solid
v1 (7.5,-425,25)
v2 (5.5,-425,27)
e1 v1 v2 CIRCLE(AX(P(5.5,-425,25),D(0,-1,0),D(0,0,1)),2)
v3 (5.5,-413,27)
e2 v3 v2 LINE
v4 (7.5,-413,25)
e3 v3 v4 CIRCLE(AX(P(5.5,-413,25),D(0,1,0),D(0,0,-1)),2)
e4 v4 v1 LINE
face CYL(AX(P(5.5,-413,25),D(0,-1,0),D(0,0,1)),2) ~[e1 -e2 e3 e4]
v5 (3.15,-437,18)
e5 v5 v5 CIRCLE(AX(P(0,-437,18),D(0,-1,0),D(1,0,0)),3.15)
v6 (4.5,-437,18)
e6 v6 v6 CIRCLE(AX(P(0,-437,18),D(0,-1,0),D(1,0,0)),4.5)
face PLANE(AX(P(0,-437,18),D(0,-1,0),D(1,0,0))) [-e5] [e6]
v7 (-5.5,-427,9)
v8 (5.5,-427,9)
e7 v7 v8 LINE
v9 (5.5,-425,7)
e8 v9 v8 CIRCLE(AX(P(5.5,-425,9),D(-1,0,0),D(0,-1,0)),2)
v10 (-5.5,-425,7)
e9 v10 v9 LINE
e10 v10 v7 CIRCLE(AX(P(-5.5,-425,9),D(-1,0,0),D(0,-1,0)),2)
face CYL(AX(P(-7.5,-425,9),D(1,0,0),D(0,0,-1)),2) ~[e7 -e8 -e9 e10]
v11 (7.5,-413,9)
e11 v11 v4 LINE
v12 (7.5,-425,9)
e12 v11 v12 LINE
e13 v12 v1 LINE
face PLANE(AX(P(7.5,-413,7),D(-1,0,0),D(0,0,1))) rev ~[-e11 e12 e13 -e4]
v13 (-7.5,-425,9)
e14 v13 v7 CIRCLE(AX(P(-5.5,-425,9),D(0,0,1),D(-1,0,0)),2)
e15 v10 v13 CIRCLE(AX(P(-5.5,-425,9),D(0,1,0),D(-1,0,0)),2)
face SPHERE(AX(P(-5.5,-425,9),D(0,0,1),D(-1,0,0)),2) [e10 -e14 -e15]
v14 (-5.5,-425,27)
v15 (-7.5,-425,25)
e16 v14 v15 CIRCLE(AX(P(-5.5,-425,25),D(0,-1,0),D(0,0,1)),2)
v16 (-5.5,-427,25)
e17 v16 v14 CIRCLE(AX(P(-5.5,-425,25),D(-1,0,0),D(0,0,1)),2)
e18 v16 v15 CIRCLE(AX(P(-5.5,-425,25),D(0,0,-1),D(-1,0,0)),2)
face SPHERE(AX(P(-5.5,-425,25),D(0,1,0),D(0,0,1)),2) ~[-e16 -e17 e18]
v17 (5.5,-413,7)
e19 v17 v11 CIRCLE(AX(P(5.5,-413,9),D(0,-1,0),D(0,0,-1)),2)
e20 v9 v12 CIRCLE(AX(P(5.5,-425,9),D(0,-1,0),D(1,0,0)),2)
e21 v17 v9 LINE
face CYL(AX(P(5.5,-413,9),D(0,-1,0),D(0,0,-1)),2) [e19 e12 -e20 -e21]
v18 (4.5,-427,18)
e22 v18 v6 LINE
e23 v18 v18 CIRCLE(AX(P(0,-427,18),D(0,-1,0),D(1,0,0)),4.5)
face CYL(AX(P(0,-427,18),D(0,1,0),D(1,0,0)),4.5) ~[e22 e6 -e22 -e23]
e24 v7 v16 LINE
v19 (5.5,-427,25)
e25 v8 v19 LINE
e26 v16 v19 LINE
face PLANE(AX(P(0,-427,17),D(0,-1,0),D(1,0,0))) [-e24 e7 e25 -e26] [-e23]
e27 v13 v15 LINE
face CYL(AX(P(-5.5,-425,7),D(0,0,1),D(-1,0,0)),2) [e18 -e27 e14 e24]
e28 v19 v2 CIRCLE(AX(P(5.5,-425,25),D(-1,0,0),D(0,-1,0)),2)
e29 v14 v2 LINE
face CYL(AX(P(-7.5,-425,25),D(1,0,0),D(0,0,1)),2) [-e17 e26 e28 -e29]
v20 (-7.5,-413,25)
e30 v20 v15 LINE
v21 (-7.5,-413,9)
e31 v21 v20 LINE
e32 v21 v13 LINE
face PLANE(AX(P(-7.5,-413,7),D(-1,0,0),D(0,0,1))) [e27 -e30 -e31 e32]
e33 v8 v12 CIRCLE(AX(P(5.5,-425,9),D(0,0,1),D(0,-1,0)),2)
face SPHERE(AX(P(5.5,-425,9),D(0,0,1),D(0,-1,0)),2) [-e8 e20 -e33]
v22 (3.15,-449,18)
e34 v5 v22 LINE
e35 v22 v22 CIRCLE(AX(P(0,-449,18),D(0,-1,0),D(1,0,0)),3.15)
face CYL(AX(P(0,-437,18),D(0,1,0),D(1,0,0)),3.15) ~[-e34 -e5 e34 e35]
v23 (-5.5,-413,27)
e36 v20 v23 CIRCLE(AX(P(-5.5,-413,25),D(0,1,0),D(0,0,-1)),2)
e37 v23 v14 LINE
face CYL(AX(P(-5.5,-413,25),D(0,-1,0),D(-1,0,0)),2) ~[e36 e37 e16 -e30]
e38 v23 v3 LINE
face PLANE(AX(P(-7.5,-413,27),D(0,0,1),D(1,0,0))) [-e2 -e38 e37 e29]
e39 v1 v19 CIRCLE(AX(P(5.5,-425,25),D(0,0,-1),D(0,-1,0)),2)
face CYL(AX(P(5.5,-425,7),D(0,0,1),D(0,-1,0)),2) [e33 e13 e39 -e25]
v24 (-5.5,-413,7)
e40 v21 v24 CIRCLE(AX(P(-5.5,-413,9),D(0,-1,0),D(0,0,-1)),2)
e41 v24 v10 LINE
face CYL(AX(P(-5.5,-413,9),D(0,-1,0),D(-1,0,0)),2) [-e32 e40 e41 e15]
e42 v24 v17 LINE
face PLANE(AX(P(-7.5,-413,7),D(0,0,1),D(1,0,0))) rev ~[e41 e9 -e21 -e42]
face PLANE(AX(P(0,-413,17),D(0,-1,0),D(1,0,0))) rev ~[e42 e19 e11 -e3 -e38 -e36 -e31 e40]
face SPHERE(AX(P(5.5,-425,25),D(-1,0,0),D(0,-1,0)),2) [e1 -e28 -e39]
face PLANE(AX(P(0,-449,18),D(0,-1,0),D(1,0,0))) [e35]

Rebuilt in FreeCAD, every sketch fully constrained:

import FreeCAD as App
import Part
import Sketcher

V = App.Vector
Q = App.Units.Quantity


def edges_at(feature, points):
    """Names of the edges that pass closest to the given points."""
    edges = feature.Shape.Edges
    near = lambda p: min(range(len(edges)), key=lambda i: edges[i].distToShape(Part.Vertex(*p))[0])
    return sorted({f"Edge{near(p) + 1}" for p in points})

doc = App.newDocument("Part")
body = doc.addObject("PartDesign::Body", "Body")

# Sketch on XZ plane
sketch1 = body.newObject("Sketcher::SketchObject", "Sketch")
sketch1.AttachmentSupport = (doc.getObject("XZ_Plane"), [""])
sketch1.MapMode = "FlatFace"
sketch1.addGeometry([
    Part.LineSegment(V(-8, 10, 0), V(-8, -10, 0)),
    Part.LineSegment(V(-8, -10, 0), V(8, -10, 0)),
    Part.LineSegment(V(8, -10, 0), V(8, 10, 0)),
    Part.LineSegment(V(8, 10, 0), V(-8, 10, 0)),
], False)
sketch1.addConstraint([
    Sketcher.Constraint("Coincident", 0, 2, 1, 1),
    Sketcher.Constraint("Coincident", 1, 2, 2, 1),
    Sketcher.Constraint("Coincident", 2, 2, 3, 1),
    Sketcher.Constraint("Coincident", 3, 2, 0, 1),
    Sketcher.Constraint("Vertical", 0),
    Sketcher.Constraint("Horizontal", 1),
    Sketcher.Constraint("Vertical", 2),
    Sketcher.Constraint("Horizontal", 3),
    Sketcher.Constraint("Symmetric", 0, 2, 2, 2, -1, 1),
    Sketcher.Constraint("DistanceX", 1, 1, 1, 2, Q("15 mm")),
    Sketcher.Constraint("DistanceY", 0, 2, 0, 1, Q("20 mm")),
])
pad1 = body.newObject("PartDesign::Pad", "Pad")
pad1.Profile = sketch1
pad1.Length = 14

# Sketch on XZ plane
sketch2 = body.newObject("Sketcher::SketchObject", "Sketch001")
sketch2.AttachmentSupport = (doc.getObject("XZ_Plane"), [""])
sketch2.MapMode = "FlatFace"
sketch2.AttachmentOffset = App.Placement(V(0, 0, 14), App.Rotation())
sketch2.addGeometry(Part.Circle(V(0, 1, 0), V(0, 0, 1), 4.5), False)
sketch2.addConstraint([
    Sketcher.Constraint("PointOnObject", 0, 3, -2),
    Sketcher.Constraint("Diameter", 0, Q("9 mm")),
    Sketcher.Constraint("DistanceY", -1, 1, 0, 3, Q("1 mm")),
])
pad2 = body.newObject("PartDesign::Pad", "Pad001")
pad2.Profile = sketch2
pad2.Length = 10

# Sketch on XZ plane
sketch3 = body.newObject("Sketcher::SketchObject", "Sketch002")
sketch3.AttachmentSupport = (doc.getObject("XZ_Plane"), [""])
sketch3.MapMode = "FlatFace"
sketch3.AttachmentOffset = App.Placement(V(0, 0, 24), App.Rotation())
sketch3.addGeometry(Part.Circle(V(0, 1, 0), V(0, 0, 1), 3.1), False)
sketch3.addConstraint([
    Sketcher.Constraint("PointOnObject", 0, 3, -2),
    Sketcher.Constraint("Diameter", 0, Q("6.3 mm")),
    Sketcher.Constraint("DistanceY", -1, 1, 0, 3, Q("1 mm")),
])
pad3 = body.newObject("PartDesign::Pad", "Pad002")
pad3.Profile = sketch3
pad3.Length = 12
doc.recompute()

fillet = body.newObject("PartDesign::Fillet", "Fillet")
fillet.Base = (pad3, edges_at(pad3, [
    (-7.5, -7, 10),
    (0, -14, 10),
    (-7.5, -14, 0),
    (7.5, -14, 0),
    (-7.5, -7, -10),
    (0, -14, -10),
    (7.5, -7, -10),
    (7.5, -7, 10),
]))
fillet.Radius = 2
body2 = doc.addObject("PartDesign::Body", "Body001")
doc.recompute()

body.Placement = App.Placement(V(0, -413, 17), App.Rotation(V(0, 0, 1), 0))
boolean = body2.newObject("PartDesign::Boolean", "Boolean")
boolean.Type = "Fuse"
boolean.addObjects([body])

doc.recompute()
